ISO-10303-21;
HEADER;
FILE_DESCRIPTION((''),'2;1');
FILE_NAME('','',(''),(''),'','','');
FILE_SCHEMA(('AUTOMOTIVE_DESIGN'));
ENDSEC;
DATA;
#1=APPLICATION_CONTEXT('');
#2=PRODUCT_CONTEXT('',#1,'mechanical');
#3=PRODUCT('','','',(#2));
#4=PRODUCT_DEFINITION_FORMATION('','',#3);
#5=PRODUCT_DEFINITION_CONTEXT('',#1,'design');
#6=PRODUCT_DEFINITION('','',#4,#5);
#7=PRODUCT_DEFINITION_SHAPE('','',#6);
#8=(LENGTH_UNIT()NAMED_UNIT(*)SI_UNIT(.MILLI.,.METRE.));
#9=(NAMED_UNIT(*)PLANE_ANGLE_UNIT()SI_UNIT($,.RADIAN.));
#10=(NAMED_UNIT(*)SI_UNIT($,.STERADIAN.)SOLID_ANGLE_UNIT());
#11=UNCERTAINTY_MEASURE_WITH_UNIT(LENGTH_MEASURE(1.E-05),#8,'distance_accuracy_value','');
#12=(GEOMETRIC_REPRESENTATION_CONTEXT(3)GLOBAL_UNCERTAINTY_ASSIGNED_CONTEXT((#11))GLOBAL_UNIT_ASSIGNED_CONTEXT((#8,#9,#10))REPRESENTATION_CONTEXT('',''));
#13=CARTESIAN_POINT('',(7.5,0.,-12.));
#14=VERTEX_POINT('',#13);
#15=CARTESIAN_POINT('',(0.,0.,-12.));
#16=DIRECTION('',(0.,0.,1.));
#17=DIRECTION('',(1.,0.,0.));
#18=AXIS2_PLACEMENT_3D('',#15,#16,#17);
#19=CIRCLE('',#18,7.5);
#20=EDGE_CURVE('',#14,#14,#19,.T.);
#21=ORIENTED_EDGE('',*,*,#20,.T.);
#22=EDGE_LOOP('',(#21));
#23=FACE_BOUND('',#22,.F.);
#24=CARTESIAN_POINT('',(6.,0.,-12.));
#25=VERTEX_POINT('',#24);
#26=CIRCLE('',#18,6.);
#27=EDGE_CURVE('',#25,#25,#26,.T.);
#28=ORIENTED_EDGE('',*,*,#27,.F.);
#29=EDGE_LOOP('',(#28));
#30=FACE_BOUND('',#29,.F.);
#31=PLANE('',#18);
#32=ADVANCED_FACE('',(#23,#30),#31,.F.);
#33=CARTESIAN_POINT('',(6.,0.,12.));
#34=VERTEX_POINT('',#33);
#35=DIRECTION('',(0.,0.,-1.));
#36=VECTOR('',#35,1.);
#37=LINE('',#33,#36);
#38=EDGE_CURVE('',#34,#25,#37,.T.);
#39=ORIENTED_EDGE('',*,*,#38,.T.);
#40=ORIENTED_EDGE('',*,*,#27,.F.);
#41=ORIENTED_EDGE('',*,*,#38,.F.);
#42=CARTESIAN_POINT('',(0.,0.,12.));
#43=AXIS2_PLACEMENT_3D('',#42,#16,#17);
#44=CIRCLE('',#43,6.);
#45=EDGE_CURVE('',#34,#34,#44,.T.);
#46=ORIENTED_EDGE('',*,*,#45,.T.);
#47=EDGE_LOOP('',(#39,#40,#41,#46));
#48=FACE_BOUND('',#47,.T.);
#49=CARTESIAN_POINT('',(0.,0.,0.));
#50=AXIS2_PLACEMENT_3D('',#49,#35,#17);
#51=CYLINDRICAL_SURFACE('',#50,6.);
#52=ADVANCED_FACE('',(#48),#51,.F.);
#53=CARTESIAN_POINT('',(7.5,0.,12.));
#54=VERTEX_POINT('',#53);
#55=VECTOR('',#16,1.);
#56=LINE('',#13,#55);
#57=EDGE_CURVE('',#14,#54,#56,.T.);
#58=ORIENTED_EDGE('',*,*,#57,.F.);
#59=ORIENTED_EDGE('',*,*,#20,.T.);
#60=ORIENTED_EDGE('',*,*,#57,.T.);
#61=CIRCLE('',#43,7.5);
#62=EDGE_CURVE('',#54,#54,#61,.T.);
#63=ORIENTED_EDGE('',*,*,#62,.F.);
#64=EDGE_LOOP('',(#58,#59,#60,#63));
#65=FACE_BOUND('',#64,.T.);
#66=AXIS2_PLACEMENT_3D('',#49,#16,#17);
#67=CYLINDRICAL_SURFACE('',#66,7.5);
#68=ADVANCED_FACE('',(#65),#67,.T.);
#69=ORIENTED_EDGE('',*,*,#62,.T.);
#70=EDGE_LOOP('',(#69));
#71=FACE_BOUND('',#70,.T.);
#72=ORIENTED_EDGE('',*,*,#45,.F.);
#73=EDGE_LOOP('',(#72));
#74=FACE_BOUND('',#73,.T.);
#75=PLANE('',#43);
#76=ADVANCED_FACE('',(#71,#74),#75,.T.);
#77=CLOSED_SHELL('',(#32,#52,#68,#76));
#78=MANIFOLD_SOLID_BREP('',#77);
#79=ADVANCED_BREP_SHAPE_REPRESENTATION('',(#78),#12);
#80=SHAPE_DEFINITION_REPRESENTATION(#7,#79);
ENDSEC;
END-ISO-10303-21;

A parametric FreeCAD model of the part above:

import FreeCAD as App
import Part
import Sketcher

doc = App.newDocument("Part")
body = doc.addObject("PartDesign::Body", "Body")

# Sketch on XY plane
sketch1 = doc.addObject("Sketcher::SketchObject", "Sketch")
body.addObject(sketch1)
sketch1.AttachmentSupport = (doc.XY_Plane, [""])
sketch1.MapMode = "FlatFace"
sketch1.addGeometry([
    Part.Circle(App.Vector(0, 0, 0), App.Vector(0, 0, 1), 8),
    Part.Circle(App.Vector(0, 0, 0), App.Vector(0, 0, 1), 6),
], False)
sketch1.addConstraint([
    Sketcher.Constraint("Coincident", 0, 3, -1, 1),
    Sketcher.Constraint("Coincident", 1, 3, -1, 1),
    Sketcher.Constraint("Diameter", 0, 15.0),
    Sketcher.Constraint("Diameter", 1, 12.0),
])
pad1 = doc.addObject("PartDesign::Pad", "Pad")
body.addObject(pad1)
pad1.Profile = sketch1
pad1.Length = 24
pad1.Midplane = True

doc.recompute()
